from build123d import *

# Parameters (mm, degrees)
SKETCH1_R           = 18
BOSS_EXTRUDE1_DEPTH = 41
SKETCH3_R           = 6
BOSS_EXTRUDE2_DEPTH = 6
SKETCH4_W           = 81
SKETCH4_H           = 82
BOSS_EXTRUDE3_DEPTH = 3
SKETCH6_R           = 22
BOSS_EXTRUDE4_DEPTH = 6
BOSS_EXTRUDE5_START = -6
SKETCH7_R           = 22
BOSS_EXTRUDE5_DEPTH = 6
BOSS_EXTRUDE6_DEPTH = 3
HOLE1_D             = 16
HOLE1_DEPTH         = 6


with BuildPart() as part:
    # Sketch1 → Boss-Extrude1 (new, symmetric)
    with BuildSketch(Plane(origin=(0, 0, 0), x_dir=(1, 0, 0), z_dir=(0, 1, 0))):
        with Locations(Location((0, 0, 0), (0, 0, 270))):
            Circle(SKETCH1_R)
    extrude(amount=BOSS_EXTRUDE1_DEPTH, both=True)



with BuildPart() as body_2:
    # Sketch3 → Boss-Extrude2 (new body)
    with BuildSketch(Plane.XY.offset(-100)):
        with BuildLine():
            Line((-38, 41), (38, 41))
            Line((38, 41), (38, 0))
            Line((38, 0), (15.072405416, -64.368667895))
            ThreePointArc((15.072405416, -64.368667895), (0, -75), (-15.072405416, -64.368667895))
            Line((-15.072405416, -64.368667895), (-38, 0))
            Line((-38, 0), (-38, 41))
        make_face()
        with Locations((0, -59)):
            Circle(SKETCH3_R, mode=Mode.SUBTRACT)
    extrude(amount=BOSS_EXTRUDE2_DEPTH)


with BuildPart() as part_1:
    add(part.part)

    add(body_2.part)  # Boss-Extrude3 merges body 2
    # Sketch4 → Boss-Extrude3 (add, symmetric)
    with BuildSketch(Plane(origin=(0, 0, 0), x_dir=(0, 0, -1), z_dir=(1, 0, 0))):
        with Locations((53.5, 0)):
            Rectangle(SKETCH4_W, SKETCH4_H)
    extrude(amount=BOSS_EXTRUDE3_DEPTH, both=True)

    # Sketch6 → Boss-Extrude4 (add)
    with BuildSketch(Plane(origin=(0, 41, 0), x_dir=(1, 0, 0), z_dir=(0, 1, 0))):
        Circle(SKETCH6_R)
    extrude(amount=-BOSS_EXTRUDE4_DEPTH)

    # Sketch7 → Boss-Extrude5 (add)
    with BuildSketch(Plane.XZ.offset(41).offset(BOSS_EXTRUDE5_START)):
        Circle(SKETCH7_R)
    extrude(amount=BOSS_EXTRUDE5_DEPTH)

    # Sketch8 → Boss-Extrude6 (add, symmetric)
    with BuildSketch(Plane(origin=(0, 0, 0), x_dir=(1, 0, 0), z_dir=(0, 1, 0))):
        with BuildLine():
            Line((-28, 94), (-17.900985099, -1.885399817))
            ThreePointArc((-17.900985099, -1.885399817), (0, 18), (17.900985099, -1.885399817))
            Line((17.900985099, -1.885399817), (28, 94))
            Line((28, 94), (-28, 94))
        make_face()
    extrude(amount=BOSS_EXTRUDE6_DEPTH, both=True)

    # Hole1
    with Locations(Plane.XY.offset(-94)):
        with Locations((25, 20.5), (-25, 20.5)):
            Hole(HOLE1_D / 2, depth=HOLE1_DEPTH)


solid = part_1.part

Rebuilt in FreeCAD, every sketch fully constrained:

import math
import FreeCAD as App
import Part
import Sketcher
from FreeCAD import Vector


def add_polygon(sketch, points):
    """Adds a closed chain of lines whose ends are joined by coincident constraints."""
    first, n = sketch.GeometryCount, len(points)
    for a, b in zip(points, points[1:] + points[:1]):
        sketch.addGeometry(Part.LineSegment(App.Vector(*a, 0), App.Vector(*b, 0)), False)
    for i in range(n):
        sketch.addConstraint(Sketcher.Constraint("Coincident", first + i, 2, first + (i + 1) % n, 1))

doc = App.newDocument("Part")
body = doc.addObject("PartDesign::Body", "Body")

# Sketch on XZ plane
sketch1 = body.newObject("Sketcher::SketchObject", "Sketch")
sketch1.AttachmentSupport = (doc.getObject("XZ_Plane"), [""])
sketch1.MapMode = "FlatFace"
sketch1.addGeometry(Part.Circle(Vector(0, 0, 0), Vector(0, 0, 1), 18), False)
sketch1.addConstraint(Sketcher.Constraint("Coincident", 0, 3, -1, 1))
sketch1.addConstraint(Sketcher.Constraint("Diameter", 0, 36.0))
pad1 = body.newObject("PartDesign::Pad", "Pad")
pad1.Profile = sketch1
pad1.Length = 82
pad1.Midplane = True
body2 = doc.addObject("PartDesign::Body", "Body001")

# Sketch on XY plane
sketch2 = body2.newObject("Sketcher::SketchObject", "Sketch001")
sketch2.AttachmentSupport = (doc.getObject("XY_Plane001"), [""])
sketch2.MapMode = "FlatFace"
sketch2.AttachmentOffset = App.Placement(Vector(0, 0, -100), App.Rotation())
sketch2.addGeometry(Part.LineSegment(Vector(38, 41, 0), Vector(-38, 41, 0)), False)
sketch2.addGeometry(Part.LineSegment(Vector(-38, 41, 0), Vector(-38, 0, 0)), False)
sketch2.addGeometry(Part.LineSegment(Vector(-38, 0, 0), Vector(-15.072405, -64.368668, 0)), False)
sketch2.addGeometry(Part.ArcOfCircle(Part.Circle(Vector(0, -59, 0), Vector(0, 0, 1), 16), math.radians(-160.394516), math.radians(-19.605484)), False)
sketch2.addGeometry(Part.LineSegment(Vector(15.072405, -64.368668, 0), Vector(38, 0, 0)), False)
sketch2.addGeometry(Part.LineSegment(Vector(38, 0, 0), Vector(38, 41, 0)), False)
sketch2.addGeometry(Part.Circle(Vector(0, -59, 0), Vector(0, 0, 1), 6), False)
sketch2.addConstraint(Sketcher.Constraint("Coincident", 0, 2, 1, 1))
sketch2.addConstraint(Sketcher.Constraint("Coincident", 1, 2, 2, 1))
sketch2.addConstraint(Sketcher.Constraint("Tangent", 2, 2, 3, 1))
sketch2.addConstraint(Sketcher.Constraint("Tangent", 3, 2, 4, 1))
sketch2.addConstraint(Sketcher.Constraint("Coincident", 4, 2, 5, 1))
sketch2.addConstraint(Sketcher.Constraint("Coincident", 5, 2, 0, 1))
sketch2.addConstraint(Sketcher.Constraint("Horizontal", 0))
sketch2.addConstraint(Sketcher.Constraint("Vertical", 1))
sketch2.addConstraint(Sketcher.Constraint("Vertical", 5))
sketch2.addConstraint(Sketcher.Constraint("Coincident", 6, 3, 3, 3))
sketch2.addConstraint(Sketcher.Constraint("Symmetric", 1, 2, 4, 2, -1, 1))
sketch2.addConstraint(Sketcher.Constraint("Symmetric", 2, 2, 3, 2, -2))
sketch2.addConstraint(Sketcher.Constraint("Diameter", 6, 12.0))
sketch2.addConstraint(Sketcher.Constraint("Radius", 3, 16.0))
sketch2.addConstraint(Sketcher.Constraint("DistanceX", 0, 2, 0, 1, 76.0))
sketch2.addConstraint(Sketcher.Constraint("DistanceY", 1, 2, 1, 1, 41.0))
sketch2.addConstraint(Sketcher.Constraint("DistanceY", 3, 3, -1, 1, 59.0))
pad2 = body2.newObject("PartDesign::Pad", "Pad001")
pad2.Profile = sketch2
pad2.Length = 6
body.AllowCompound = True
doc.recompute()

boolean = body.newObject("PartDesign::Boolean", "Boolean")
boolean.Type = "Fuse"
boolean.addObjects([body2])

# Sketch on YZ plane
sketch3 = body.newObject("Sketcher::SketchObject", "Sketch002")
sketch3.AttachmentSupport = (doc.getObject("YZ_Plane"), [""])
sketch3.MapMode = "FlatFace"
add_polygon(sketch3, [(41, -13), (-41, -13), (-41, -94), (41, -94)])  # lines 0-3
sketch3.addConstraint(Sketcher.Constraint("Horizontal", 0))
sketch3.addConstraint(Sketcher.Constraint("Vertical", 1))
sketch3.addConstraint(Sketcher.Constraint("Horizontal", 2))
sketch3.addConstraint(Sketcher.Constraint("Vertical", 3))
sketch3.addConstraint(Sketcher.Constraint("DistanceX", 0, 2, 0, 1, 82.0))
sketch3.addConstraint(Sketcher.Constraint("DistanceY", 1, 2, 1, 1, 81.0))
sketch3.addConstraint(Sketcher.Constraint("DistanceX", 0, 2, -1, 1, 41.0))
sketch3.addConstraint(Sketcher.Constraint("DistanceY", 0, 2, -1, 1, 13.0))
pad3 = body.newObject("PartDesign::Pad", "Pad002")
pad3.Profile = sketch3
pad3.Length = 6
pad3.Midplane = True

# Sketch on XZ plane
sketch4 = body.newObject("Sketcher::SketchObject", "Sketch003")
sketch4.AttachmentSupport = (doc.getObject("XZ_Plane"), [""])
sketch4.MapMode = "FlatFace"
sketch4.AttachmentOffset = App.Placement(Vector(0, 0, -41), App.Rotation())
sketch4.addGeometry(Part.Circle(Vector(0, 0, 0), Vector(0, 0, 1), 22), False)
sketch4.addConstraint(Sketcher.Constraint("Coincident", 0, 3, -1, 1))
sketch4.addConstraint(Sketcher.Constraint("Diameter", 0, 44.0))
pad4 = body.newObject("PartDesign::Pad", "Pad003")
pad4.Profile = sketch4
pad4.Length = 6

# Sketch on XZ plane
sketch5 = body.newObject("Sketcher::SketchObject", "Sketch004")
sketch5.AttachmentSupport = (doc.getObject("XZ_Plane"), [""])
sketch5.MapMode = "FlatFace"
sketch5.AttachmentOffset = App.Placement(Vector(0, 0, 35), App.Rotation())
sketch5.addGeometry(Part.Circle(Vector(0, 0, 0), Vector(0, 0, 1), 22), False)
sketch5.addConstraint(Sketcher.Constraint("Coincident", 0, 3, -1, 1))
sketch5.addConstraint(Sketcher.Constraint("Diameter", 0, 44.0))
pad5 = body.newObject("PartDesign::Pad", "Pad004")
pad5.Profile = sketch5
pad5.Length = 6

# Sketch on XZ plane
sketch6 = body.newObject("Sketcher::SketchObject", "Sketch005")
sketch6.AttachmentSupport = (doc.getObject("XZ_Plane"), [""])
sketch6.MapMode = "FlatFace"
sketch6.addGeometry(Part.LineSegment(Vector(-28, -94, 0), Vector(-17.900985, 1.8854, 0)), False)
sketch6.addGeometry(Part.ArcOfCircle(Part.Circle(Vector(0, 0, 0), Vector(0, 0, 1), 18), math.radians(173.987557), math.radians(366.012443)), False)
sketch6.addGeometry(Part.LineSegment(Vector(17.900985, 1.8854, 0), Vector(28, -94, 0)), False)
sketch6.addGeometry(Part.LineSegment(Vector(28, -94, 0), Vector(-28, -94, 0)), False)
sketch6.addConstraint(Sketcher.Constraint("Tangent", 0, 2, 1, 1))
sketch6.addConstraint(Sketcher.Constraint("Tangent", 1, 2, 2, 1))
sketch6.addConstraint(Sketcher.Constraint("Coincident", 2, 2, 3, 1))
sketch6.addConstraint(Sketcher.Constraint("Coincident", 3, 2, 0, 1))
sketch6.addConstraint(Sketcher.Constraint("Horizontal", 3))
sketch6.addConstraint(Sketcher.Constraint("Coincident", 1, 3, -1, 1))
sketch6.addConstraint(Sketcher.Constraint("Horizontal", 0, 2, 1, 2))
sketch6.addConstraint(Sketcher.Constraint("Radius", 1, 18.0))
sketch6.addConstraint(Sketcher.Constraint("DistanceX", 3, 2, 3, 1, 56.0))
sketch6.addConstraint(Sketcher.Constraint("DistanceY", 2, 2, -1, 1, 94.0))
pad6 = body.newObject("PartDesign::Pad", "Pad005")
pad6.Profile = sketch6
pad6.Length = 6
pad6.Midplane = True

# Sketch on XY plane
sketch7 = body.newObject("Sketcher::SketchObject", "Sketch006")
sketch7.AttachmentSupport = (doc.getObject("XY_Plane"), [""])
sketch7.MapMode = "FlatFace"
sketch7.AttachmentOffset = App.Placement(Vector(0, 0, -94), App.Rotation())
sketch7.addGeometry(Part.Circle(Vector(25, 20.5, 0), Vector(0, 0, 1), 8), False)
sketch7.addGeometry(Part.Circle(Vector(-25, 20.5, 0), Vector(0, 0, 1), 8), False)
sketch7.addConstraint(Sketcher.Constraint("Equal", 0, 1))
sketch7.addConstraint(Sketcher.Constraint("Symmetric", 0, 3, 1, 3, -2))
sketch7.addConstraint(Sketcher.Constraint("Diameter", 0, 16.0))
sketch7.addConstraint(Sketcher.Constraint("DistanceX", -1, 1, 0, 3, 25.0))
sketch7.addConstraint(Sketcher.Constraint("DistanceY", -1, 1, 0, 3, 20.5))
doc.recompute()
hole = body.newObject("PartDesign::Hole", "Hole")
hole.Profile = sketch7
hole.ThreadType = "None"
hole.Diameter = 16
hole.DepthType = "Dimension"
hole.Depth = 6
hole.DrillPoint = "Flat"

doc.recompute()
